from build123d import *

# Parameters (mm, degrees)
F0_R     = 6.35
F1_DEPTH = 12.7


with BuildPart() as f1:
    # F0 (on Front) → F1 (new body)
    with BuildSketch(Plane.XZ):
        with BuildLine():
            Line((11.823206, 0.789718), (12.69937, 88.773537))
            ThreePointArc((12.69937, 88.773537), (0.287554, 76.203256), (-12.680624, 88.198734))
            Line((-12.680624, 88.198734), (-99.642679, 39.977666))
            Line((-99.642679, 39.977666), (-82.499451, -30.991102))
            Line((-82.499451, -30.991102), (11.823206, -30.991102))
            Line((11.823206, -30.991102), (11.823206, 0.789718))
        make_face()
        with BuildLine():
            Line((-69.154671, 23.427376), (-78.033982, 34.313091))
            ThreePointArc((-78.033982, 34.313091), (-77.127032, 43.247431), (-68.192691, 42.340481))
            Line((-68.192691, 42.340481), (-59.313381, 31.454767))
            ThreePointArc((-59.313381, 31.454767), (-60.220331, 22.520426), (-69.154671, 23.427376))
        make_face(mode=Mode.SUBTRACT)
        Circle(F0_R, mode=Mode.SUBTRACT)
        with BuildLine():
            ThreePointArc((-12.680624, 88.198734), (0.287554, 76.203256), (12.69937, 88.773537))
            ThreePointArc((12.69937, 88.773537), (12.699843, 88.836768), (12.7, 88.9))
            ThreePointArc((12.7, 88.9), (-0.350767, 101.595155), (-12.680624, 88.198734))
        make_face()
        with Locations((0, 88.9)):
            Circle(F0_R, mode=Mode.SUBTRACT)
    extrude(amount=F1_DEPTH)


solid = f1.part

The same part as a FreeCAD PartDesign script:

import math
import FreeCAD as App
import Part
import Sketcher
Q = App.Units.Quantity

doc = App.newDocument("Part")
params = doc.addObject("Spreadsheet::Sheet", "Params")
for row, (alias, value) in enumerate([
    ("sketch1_diameter", "0.5 in"),
    ("sketch1_radius", "0.5 in"),
    ("pad1_length", "0.5 in"),
], start=1):
    params.set(f"A{row}", alias)
    params.set(f"B{row}", "=" + value)
    params.setAlias(f"B{row}", alias)

body = doc.addObject("PartDesign::Body", "Body")

sketch1 = body.newObject("Sketcher::SketchObject", "Sketch")
sketch1.AttachmentSupport = (doc.getObject("XZ_Plane"), [""])
sketch1.MapMode = "FlatFace"
sketch1.addGeometry([
    Part.LineSegment(App.Vector(11.82, 0.79, 0), App.Vector(12.7, 88.77, 0)),
    Part.ArcOfCircle(Part.Circle(App.Vector(0.05, 88.9, 0), App.Vector(0, 0, 1), 12.65), math.radians(-0.57), math.radians(0)),
    Part.ArcOfCircle(Part.Circle(App.Vector(0, 88.9, 0), App.Vector(0, 0, 1), 12.7), math.radians(0), math.radians(183)),
    Part.LineSegment(App.Vector(-12.68, 88.2, 0), App.Vector(-99.64, 39.98, 0)),
    Part.LineSegment(App.Vector(-99.64, 39.98, 0), App.Vector(-82.5, -30.99, 0)),
    Part.LineSegment(App.Vector(-82.5, -30.99, 0), App.Vector(11.82, -30.99, 0)),
    Part.LineSegment(App.Vector(11.82, -30.99, 0), App.Vector(11.82, 0.79, 0)),
    Part.ArcOfCircle(Part.Circle(App.Vector(-64.23, 27.44, 0), App.Vector(0, 0, 1), 6.35), math.radians(-141), math.radians(39)),
    Part.LineSegment(App.Vector(-69.15, 23.43, 0), App.Vector(-78.03, 34.31, 0)),
    Part.ArcOfCircle(Part.Circle(App.Vector(-73.11, 38.33, 0), App.Vector(0, 0, 1), 6.35), math.radians(39), math.radians(219)),
    Part.LineSegment(App.Vector(-68.19, 42.34, 0), App.Vector(-59.31, 31.45, 0)),
    Part.Circle(App.Vector(0, 0, 0), App.Vector(0, 0, 1), 6.35),
    Part.Circle(App.Vector(0, 88.9, 0), App.Vector(0, 0, 1), 6.35),
], False)
sketch1.addConstraint([
    Sketcher.Constraint("Coincident", 0, 2, 1, 1),
    Sketcher.Constraint("Coincident", 1, 2, 2, 1),
    Sketcher.Constraint("Coincident", 2, 2, 3, 1),
    Sketcher.Constraint("Coincident", 3, 2, 4, 1),
    Sketcher.Constraint("Coincident", 4, 2, 5, 1),
    Sketcher.Constraint("Coincident", 5, 2, 6, 1),
    Sketcher.Constraint("Coincident", 6, 2, 0, 1),
    Sketcher.Constraint("Tangent", 7, 1, 8, 1),
    Sketcher.Constraint("Tangent", 8, 2, 9, 2),
    Sketcher.Constraint("Tangent", 9, 1, 10, 1),
    Sketcher.Constraint("Tangent", 10, 2, 7, 2),
    Sketcher.Constraint("Horizontal", 5),
    Sketcher.Constraint("Vertical", 6),
    Sketcher.Constraint("Coincident", 11, 3, -1, 1),
    Sketcher.Constraint("Coincident", 12, 3, 2, 3),
    Sketcher.Constraint("Equal", 7, 9),
    Sketcher.Constraint("Equal", 9, 11),
    Sketcher.Constraint("Equal", 11, 12),
    Sketcher.Constraint("PointOnObject", 2, 3, -2),
    Sketcher.Constraint("Horizontal", 12, 3, 1, 2),
    Sketcher.Constraint("Diameter", 11, Q("0.5 in")),
    Sketcher.Constraint("Radius", 2, Q("0.5 in")),
    Sketcher.Constraint("DistanceY", -1, 1, 2, 3, Q("3.5 in")),
    Sketcher.Constraint("Radius", 1, 12.652954),
    Sketcher.Constraint("DistanceY", 6, 1, 6, 2, 31.78082),
    Sketcher.Constraint("DistanceY", -1, 1, 1, 3, 88.8998),
    Sketcher.Constraint("DistanceX", 8, 2, 10, 2, 18.720601),
    Sketcher.Constraint("Distance", 0, 87.988181),
    Sketcher.Constraint("Distance", 8, 14.04781),
    Sketcher.Constraint("DistanceX", 5, 1, 5, 2, 94.322657),
    Sketcher.Constraint("DistanceY", -1, 1, 7, 3, 27.441071),
    Sketcher.Constraint("DistanceX", -1, 1, 0, 2, 12.69937),
    Sketcher.Constraint("DistanceX", 3, 2, -1, 1, 99.642679),
    Sketcher.Constraint("DistanceX", 4, 2, -1, 1, 82.499451),
    Sketcher.Constraint("DistanceX", 7, 1, -1, 1, 69.154671),
    Sketcher.Constraint("DistanceX", 2, 2, 1, 3, 12.72767),
    Sketcher.Constraint("DistanceY", 9, 3, 3, 2, 1.65088),
])
sketch1.setExpression("Constraints[20]", "Params.sketch1_diameter")
sketch1.setExpression("Constraints[21]", "Params.sketch1_radius")
pad1 = body.newObject("PartDesign::Pad", "Pad")
pad1.Profile = sketch1
pad1.setExpression("Length", "Params.pad1_length")

doc.recompute()
